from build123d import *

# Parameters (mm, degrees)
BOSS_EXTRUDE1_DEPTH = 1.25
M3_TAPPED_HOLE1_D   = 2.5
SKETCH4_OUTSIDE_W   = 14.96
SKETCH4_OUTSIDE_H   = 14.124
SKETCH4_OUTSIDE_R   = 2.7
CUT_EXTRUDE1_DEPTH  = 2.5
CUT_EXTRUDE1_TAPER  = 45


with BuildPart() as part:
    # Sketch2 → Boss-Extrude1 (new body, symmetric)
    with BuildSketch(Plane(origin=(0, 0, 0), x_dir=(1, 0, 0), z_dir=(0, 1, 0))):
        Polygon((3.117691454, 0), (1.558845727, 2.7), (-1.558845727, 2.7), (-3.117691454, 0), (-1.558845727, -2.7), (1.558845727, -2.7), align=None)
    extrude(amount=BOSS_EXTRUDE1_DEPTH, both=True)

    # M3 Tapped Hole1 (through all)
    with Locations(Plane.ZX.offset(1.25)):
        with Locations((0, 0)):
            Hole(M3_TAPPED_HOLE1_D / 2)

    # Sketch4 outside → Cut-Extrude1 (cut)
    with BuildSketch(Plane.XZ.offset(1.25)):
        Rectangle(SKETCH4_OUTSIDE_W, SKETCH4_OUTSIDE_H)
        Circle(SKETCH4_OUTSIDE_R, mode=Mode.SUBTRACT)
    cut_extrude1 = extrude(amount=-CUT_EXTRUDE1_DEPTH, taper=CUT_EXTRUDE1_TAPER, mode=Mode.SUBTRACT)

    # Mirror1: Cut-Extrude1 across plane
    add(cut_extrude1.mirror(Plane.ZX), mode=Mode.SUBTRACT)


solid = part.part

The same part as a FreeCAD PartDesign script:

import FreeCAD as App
import Part
import Sketcher
Q = App.Units.Quantity


def add_polygon(sketch, points):
    """Adds a closed chain of lines whose ends are joined by coincident constraints."""
    first, n = sketch.GeometryCount, len(points)
    for a, b in zip(points, points[1:] + points[:1]):
        sketch.addGeometry(Part.LineSegment(App.Vector(*a, 0), App.Vector(*b, 0)), False)
    for i in range(n):
        sketch.addConstraint(Sketcher.Constraint("Coincident", first + i, 2, first + (i + 1) % n, 1))

doc = App.newDocument("Part")
body = doc.addObject("PartDesign::Body", "Body")

# Sketch on XZ plane
sketch1 = body.newObject("Sketcher::SketchObject", "Sketch")
sketch1.AttachmentSupport = (doc.getObject("XZ_Plane"), [""])
sketch1.MapMode = "FlatFace"
add_polygon(sketch1, [(3.1, 0), (1.6, -2.7), (-1.6, -2.7), (-3.1, 0), (-1.6, 2.7), (1.6, 2.7)])  # lines 0-5
sketch1.addConstraint([
    Sketcher.Constraint("Horizontal", 1),
    Sketcher.Constraint("Horizontal", 4),
    Sketcher.Constraint("Symmetric", 0, 2, 3, 2, -1, 1),
    Sketcher.Constraint("Symmetric", 2, 2, 5, 2, -1, 1),
    Sketcher.Constraint("PointOnObject", 2, 2, -1),
    Sketcher.Constraint("Parallel", 2, 5),
    Sketcher.Constraint("Vertical", 1, 2, 3, 2),
    Sketcher.Constraint("Angle", 0, Q("-120 deg")),
    Sketcher.Constraint("DistanceY", 0, 2, -1, 1, 2.7),
    Sketcher.Constraint("DistanceX", 1, 2, 1, 1, 3.117691),
])
pad1 = body.newObject("PartDesign::Pad", "Pad")
pad1.Profile = sketch1
pad1.Length = 2.5
pad1.Midplane = True

# Sketch on XZ plane
sketch2 = body.newObject("Sketcher::SketchObject", "Sketch001")
sketch2.AttachmentSupport = (doc.getObject("XZ_Plane"), [""])
sketch2.MapMode = "FlatFace"
sketch2.AttachmentOffset = App.Placement(App.Vector(0, 0, -1.25), App.Rotation())
sketch2.addGeometry(Part.Circle(App.Vector(0, 0, 0), App.Vector(0, 0, 1), 1.2), False)
sketch2.addConstraint([
    Sketcher.Constraint("Coincident", 0, 3, -1, 1),
    Sketcher.Constraint("Diameter", 0, 2.5),
])
doc.recompute()
hole = body.newObject("PartDesign::Hole", "Hole")
hole.Profile = sketch2
hole.ThreadType = "None"
hole.Diameter = 2.5
hole.DepthType = "ThroughAll"
hole.Reversed = True

# Sketch on XZ plane
sketch3 = body.newObject("Sketcher::SketchObject", "Sketch002")
sketch3.AttachmentSupport = (doc.getObject("XZ_Plane"), [""])
sketch3.MapMode = "FlatFace"
sketch3.AttachmentOffset = App.Placement(App.Vector(0, 0, 1.25), App.Rotation())
add_polygon(sketch3, [(-7.5, 7.1), (-7.5, -7.1), (7.5, -7.1), (7.5, 7.1)])  # lines 0-3
sketch3.addGeometry(Part.Circle(App.Vector(0, 0, 0), App.Vector(0, 0, 1), 2.7), False)  # 4
sketch3.addConstraint([
    Sketcher.Constraint("Vertical", 0),
    Sketcher.Constraint("Horizontal", 1),
    Sketcher.Constraint("Vertical", 2),
    Sketcher.Constraint("Horizontal", 3),
    Sketcher.Constraint("Coincident", 4, 3, -1, 1),
    Sketcher.Constraint("Symmetric", 0, 2, 2, 2, -1, 1),
    Sketcher.Constraint("Diameter", 4, 5.4),
    Sketcher.Constraint("DistanceX", 1, 1, 1, 2, 14.96),
    Sketcher.Constraint("DistanceY", 0, 2, 0, 1, 14.124),
])
pocket1 = body.newObject("PartDesign::Pocket", "Pocket")
pocket1.Profile = sketch3
pocket1.Length = 2.5
pocket1.TaperAngle = 45
doc.recompute()

mirrored = body.newObject("PartDesign::Mirrored", "Mirrored")
mirrored.Originals = [pocket1]
mirrored.MirrorPlane = (doc.getObject("XZ_Plane"), [""])
body.Tip = mirrored

doc.recompute()
